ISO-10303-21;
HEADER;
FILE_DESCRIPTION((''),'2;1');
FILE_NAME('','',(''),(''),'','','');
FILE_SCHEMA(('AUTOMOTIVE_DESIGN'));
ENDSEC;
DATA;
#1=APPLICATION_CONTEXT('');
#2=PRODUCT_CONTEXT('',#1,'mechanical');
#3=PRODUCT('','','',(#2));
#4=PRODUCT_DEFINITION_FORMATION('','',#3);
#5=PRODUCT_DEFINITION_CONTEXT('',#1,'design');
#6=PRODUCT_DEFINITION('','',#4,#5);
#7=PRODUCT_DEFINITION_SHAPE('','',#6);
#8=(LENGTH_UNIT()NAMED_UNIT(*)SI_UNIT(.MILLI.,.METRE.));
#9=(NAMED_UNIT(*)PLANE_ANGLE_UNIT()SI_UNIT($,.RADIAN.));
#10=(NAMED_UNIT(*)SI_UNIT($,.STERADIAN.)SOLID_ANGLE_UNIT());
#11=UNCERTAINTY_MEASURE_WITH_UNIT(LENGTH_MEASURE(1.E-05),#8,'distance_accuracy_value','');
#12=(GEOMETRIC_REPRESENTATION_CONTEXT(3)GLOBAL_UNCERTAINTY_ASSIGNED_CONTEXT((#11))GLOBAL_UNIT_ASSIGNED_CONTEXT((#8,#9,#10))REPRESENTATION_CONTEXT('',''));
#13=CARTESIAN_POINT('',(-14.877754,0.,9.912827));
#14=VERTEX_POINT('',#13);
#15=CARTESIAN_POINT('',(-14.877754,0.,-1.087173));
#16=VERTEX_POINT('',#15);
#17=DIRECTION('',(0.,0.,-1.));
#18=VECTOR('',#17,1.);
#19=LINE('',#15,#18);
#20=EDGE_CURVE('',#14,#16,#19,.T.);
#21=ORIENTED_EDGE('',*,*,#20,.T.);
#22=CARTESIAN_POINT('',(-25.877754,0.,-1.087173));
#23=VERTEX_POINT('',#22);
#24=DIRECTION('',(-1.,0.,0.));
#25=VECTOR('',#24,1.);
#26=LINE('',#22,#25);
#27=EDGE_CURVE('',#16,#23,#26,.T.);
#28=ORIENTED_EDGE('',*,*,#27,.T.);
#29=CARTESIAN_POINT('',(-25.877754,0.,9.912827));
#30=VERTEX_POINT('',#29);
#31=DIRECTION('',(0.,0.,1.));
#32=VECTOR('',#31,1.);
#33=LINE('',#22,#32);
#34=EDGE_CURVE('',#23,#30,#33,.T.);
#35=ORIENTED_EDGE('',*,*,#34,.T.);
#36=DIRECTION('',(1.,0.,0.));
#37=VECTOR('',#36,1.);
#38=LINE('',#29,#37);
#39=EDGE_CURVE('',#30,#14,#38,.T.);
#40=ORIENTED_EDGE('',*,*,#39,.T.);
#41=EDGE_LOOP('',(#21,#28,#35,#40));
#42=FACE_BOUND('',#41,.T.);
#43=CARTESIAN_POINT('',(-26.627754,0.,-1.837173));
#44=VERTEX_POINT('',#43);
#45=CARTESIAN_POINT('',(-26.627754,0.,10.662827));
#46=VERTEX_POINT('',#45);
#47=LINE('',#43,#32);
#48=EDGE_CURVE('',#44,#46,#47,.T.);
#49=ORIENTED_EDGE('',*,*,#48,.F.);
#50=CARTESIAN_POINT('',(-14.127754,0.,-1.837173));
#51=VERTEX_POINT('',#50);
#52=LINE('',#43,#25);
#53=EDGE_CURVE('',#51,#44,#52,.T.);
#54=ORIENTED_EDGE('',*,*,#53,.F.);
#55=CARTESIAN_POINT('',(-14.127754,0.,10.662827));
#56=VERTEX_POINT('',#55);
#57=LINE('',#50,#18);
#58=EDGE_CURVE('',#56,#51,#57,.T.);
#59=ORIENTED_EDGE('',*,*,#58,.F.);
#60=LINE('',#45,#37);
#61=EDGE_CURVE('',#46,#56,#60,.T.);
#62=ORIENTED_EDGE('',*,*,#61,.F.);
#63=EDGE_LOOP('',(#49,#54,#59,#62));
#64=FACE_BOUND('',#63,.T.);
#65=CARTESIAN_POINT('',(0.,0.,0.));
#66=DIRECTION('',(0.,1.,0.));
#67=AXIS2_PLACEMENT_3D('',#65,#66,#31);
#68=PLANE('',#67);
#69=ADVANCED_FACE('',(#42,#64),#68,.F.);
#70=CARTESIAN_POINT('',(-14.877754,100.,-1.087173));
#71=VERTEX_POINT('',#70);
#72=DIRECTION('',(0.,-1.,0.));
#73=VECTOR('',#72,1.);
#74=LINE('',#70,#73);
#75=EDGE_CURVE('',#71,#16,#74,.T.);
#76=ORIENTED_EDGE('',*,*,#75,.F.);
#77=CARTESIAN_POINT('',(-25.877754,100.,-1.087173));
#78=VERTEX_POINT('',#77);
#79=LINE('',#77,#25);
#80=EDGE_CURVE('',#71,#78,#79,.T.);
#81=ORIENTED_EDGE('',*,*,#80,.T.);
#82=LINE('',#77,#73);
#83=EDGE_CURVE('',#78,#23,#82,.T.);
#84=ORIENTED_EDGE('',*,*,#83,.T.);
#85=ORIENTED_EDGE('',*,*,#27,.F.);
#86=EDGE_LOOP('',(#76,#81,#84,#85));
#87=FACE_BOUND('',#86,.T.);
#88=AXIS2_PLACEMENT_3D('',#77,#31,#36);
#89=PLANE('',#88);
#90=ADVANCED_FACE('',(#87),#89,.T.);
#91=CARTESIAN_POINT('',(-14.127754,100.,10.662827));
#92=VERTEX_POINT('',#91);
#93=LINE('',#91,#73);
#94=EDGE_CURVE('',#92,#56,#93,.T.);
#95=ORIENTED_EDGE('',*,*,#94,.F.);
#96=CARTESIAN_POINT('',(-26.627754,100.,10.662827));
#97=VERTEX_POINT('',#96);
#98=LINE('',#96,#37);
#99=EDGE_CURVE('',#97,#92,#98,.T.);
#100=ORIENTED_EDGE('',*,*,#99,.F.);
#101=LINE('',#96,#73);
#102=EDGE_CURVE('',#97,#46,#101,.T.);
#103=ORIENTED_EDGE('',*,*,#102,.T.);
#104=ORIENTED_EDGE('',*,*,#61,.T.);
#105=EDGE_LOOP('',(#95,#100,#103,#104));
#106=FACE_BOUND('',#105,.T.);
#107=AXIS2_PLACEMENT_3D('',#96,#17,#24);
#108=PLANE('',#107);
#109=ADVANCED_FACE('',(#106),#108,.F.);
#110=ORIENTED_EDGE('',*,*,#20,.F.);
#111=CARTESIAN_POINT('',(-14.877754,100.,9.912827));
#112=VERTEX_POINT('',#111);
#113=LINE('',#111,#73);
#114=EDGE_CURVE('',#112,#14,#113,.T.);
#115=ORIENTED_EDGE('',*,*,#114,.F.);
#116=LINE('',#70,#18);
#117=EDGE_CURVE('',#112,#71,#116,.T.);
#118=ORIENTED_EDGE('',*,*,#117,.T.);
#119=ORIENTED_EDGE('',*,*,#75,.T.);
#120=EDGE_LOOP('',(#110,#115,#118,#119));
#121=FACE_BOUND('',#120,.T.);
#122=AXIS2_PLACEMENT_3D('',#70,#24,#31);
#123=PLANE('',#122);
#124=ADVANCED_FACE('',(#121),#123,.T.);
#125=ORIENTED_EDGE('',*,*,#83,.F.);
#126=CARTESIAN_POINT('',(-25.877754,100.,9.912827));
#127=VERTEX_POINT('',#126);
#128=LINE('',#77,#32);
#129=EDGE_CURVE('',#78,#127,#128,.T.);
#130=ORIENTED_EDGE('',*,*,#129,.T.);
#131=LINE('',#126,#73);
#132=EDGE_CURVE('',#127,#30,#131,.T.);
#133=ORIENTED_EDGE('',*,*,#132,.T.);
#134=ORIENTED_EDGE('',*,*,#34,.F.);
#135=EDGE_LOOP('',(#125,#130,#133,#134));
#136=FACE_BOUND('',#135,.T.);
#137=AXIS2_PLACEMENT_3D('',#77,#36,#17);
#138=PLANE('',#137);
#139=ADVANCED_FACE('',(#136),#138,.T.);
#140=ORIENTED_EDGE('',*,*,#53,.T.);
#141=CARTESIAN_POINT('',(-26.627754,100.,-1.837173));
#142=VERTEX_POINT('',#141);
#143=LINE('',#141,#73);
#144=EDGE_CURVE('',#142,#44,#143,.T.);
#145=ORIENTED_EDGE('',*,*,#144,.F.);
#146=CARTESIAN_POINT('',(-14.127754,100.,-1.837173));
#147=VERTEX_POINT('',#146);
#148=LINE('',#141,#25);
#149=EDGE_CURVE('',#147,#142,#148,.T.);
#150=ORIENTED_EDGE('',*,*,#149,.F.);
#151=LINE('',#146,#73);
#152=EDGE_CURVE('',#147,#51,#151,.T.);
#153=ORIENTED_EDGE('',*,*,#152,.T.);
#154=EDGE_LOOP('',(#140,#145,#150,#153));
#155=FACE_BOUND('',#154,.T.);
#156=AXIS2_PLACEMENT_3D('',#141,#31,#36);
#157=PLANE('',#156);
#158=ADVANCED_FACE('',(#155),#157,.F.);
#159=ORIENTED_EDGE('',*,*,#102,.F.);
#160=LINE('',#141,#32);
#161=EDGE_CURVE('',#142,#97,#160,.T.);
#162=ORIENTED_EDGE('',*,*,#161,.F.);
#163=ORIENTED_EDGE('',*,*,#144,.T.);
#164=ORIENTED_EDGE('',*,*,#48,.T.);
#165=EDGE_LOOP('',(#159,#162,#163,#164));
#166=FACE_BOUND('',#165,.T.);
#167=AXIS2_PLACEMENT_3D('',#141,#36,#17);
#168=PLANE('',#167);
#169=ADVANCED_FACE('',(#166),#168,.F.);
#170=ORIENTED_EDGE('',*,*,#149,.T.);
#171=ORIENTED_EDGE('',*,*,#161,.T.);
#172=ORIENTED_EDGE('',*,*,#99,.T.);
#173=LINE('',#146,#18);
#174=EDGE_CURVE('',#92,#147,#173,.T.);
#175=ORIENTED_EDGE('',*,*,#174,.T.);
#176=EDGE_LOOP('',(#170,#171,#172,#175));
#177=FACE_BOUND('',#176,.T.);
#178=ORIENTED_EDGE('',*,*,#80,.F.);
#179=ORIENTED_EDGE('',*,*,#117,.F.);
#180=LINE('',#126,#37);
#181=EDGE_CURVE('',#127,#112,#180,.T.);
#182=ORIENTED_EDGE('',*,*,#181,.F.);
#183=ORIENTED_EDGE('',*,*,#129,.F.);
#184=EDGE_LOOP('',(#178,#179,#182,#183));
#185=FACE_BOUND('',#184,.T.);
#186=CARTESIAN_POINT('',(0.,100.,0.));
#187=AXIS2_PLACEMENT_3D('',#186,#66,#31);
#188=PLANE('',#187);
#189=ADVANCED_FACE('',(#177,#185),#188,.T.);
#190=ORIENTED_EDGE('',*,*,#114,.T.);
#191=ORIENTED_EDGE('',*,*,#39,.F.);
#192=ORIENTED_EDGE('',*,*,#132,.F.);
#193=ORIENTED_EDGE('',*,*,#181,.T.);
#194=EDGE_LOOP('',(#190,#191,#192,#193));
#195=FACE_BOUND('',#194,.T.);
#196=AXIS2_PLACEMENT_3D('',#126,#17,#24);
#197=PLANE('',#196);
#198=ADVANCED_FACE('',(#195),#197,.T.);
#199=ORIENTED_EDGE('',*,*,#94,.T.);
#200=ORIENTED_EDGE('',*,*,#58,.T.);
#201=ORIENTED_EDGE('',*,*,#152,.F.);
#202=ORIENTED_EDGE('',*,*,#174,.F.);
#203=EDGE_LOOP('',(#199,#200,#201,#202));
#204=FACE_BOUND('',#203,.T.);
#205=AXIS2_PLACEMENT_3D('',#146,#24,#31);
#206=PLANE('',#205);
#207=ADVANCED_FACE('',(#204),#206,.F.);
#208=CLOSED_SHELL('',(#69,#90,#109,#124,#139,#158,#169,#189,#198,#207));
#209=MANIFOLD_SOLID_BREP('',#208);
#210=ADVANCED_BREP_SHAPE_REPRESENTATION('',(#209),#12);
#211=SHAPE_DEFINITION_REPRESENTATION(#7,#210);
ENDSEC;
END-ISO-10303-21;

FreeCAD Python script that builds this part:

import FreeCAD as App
import Part
import Sketcher
Q = App.Units.Quantity

doc = App.newDocument("Part")
body = doc.addObject("PartDesign::Body", "Body")

sketch1 = body.newObject("Sketcher::SketchObject", "Sketch")
sketch1.AttachmentSupport = (doc.getObject("XZ_Plane"), [""])
sketch1.MapMode = "FlatFace"
sketch1.addGeometry(Part.LineSegment(App.Vector(-26.627754, -1.837173, 0), App.Vector(-26.627754, 10.662827, 0)), False)
sketch1.addGeometry(Part.LineSegment(App.Vector(-26.627754, 10.662827, 0), App.Vector(-14.127754, 10.662827, 0)), False)
sketch1.addGeometry(Part.LineSegment(App.Vector(-14.127754, 10.662827, 0), App.Vector(-14.127754, -1.837173, 0)), False)
sketch1.addGeometry(Part.LineSegment(App.Vector(-14.127754, -1.837173, 0), App.Vector(-26.627754, -1.837173, 0)), False)
sketch1.addGeometry(Part.LineSegment(App.Vector(-14.877754, 9.912827, 0), App.Vector(-25.877754, 9.912827, 0)), False)
sketch1.addGeometry(Part.LineSegment(App.Vector(-25.877754, 9.912827, 0), App.Vector(-25.877754, -1.087173, 0)), False)
sketch1.addGeometry(Part.LineSegment(App.Vector(-25.877754, -1.087173, 0), App.Vector(-14.877754, -1.087173, 0)), False)
sketch1.addGeometry(Part.LineSegment(App.Vector(-14.877754, -1.087173, 0), App.Vector(-14.877754, 9.912827, 0)), False)
sketch1.addConstraint(Sketcher.Constraint("Coincident", 0, 2, 1, 1))
sketch1.addConstraint(Sketcher.Constraint("Coincident", 1, 2, 2, 1))
sketch1.addConstraint(Sketcher.Constraint("Coincident", 2, 2, 3, 1))
sketch1.addConstraint(Sketcher.Constraint("Coincident", 3, 2, 0, 1))
sketch1.addConstraint(Sketcher.Constraint("Coincident", 4, 2, 5, 1))
sketch1.addConstraint(Sketcher.Constraint("Coincident", 5, 2, 6, 1))
sketch1.addConstraint(Sketcher.Constraint("Coincident", 6, 2, 7, 1))
sketch1.addConstraint(Sketcher.Constraint("Coincident", 7, 2, 4, 1))
sketch1.addConstraint(Sketcher.Constraint("Vertical", 0))
sketch1.addConstraint(Sketcher.Constraint("Horizontal", 1))
sketch1.addConstraint(Sketcher.Constraint("Vertical", 2))
sketch1.addConstraint(Sketcher.Constraint("Horizontal", 3))
sketch1.addConstraint(Sketcher.Constraint("Horizontal", 4))
sketch1.addConstraint(Sketcher.Constraint("Vertical", 5))
sketch1.addConstraint(Sketcher.Constraint("Horizontal", 6))
sketch1.addConstraint(Sketcher.Constraint("Vertical", 7))
sketch1.addConstraint(Sketcher.Constraint("Equal", 3, 0))
sketch1.addConstraint(Sketcher.Constraint("Equal", 6, 5))
sketch1.addConstraint(Sketcher.Constraint("DistanceX", 4, 2, 4, 1, Q("11 mm")))
sketch1.addConstraint(Sketcher.Constraint("DistanceX", 1, 1, 1, 2, Q("12.5 mm")))
sketch1.addConstraint(Sketcher.Constraint("DistanceX", 0, 2, 4, 2, Q("0.75 mm")))
sketch1.addConstraint(Sketcher.Constraint("DistanceY", 4, 2, 0, 2, Q("0.75 mm")))
sketch1.addConstraint(Sketcher.Constraint("DistanceX", 0, 2, -1, 1, Q("26.627754 mm")))
sketch1.addConstraint(Sketcher.Constraint("DistanceY", -1, 1, 0, 2, Q("10.662827 mm")))
pad1 = body.newObject("PartDesign::Pad", "Pad")
pad1.Profile = sketch1
pad1.Length = 100
pad1.Reversed = True

doc.recompute()
